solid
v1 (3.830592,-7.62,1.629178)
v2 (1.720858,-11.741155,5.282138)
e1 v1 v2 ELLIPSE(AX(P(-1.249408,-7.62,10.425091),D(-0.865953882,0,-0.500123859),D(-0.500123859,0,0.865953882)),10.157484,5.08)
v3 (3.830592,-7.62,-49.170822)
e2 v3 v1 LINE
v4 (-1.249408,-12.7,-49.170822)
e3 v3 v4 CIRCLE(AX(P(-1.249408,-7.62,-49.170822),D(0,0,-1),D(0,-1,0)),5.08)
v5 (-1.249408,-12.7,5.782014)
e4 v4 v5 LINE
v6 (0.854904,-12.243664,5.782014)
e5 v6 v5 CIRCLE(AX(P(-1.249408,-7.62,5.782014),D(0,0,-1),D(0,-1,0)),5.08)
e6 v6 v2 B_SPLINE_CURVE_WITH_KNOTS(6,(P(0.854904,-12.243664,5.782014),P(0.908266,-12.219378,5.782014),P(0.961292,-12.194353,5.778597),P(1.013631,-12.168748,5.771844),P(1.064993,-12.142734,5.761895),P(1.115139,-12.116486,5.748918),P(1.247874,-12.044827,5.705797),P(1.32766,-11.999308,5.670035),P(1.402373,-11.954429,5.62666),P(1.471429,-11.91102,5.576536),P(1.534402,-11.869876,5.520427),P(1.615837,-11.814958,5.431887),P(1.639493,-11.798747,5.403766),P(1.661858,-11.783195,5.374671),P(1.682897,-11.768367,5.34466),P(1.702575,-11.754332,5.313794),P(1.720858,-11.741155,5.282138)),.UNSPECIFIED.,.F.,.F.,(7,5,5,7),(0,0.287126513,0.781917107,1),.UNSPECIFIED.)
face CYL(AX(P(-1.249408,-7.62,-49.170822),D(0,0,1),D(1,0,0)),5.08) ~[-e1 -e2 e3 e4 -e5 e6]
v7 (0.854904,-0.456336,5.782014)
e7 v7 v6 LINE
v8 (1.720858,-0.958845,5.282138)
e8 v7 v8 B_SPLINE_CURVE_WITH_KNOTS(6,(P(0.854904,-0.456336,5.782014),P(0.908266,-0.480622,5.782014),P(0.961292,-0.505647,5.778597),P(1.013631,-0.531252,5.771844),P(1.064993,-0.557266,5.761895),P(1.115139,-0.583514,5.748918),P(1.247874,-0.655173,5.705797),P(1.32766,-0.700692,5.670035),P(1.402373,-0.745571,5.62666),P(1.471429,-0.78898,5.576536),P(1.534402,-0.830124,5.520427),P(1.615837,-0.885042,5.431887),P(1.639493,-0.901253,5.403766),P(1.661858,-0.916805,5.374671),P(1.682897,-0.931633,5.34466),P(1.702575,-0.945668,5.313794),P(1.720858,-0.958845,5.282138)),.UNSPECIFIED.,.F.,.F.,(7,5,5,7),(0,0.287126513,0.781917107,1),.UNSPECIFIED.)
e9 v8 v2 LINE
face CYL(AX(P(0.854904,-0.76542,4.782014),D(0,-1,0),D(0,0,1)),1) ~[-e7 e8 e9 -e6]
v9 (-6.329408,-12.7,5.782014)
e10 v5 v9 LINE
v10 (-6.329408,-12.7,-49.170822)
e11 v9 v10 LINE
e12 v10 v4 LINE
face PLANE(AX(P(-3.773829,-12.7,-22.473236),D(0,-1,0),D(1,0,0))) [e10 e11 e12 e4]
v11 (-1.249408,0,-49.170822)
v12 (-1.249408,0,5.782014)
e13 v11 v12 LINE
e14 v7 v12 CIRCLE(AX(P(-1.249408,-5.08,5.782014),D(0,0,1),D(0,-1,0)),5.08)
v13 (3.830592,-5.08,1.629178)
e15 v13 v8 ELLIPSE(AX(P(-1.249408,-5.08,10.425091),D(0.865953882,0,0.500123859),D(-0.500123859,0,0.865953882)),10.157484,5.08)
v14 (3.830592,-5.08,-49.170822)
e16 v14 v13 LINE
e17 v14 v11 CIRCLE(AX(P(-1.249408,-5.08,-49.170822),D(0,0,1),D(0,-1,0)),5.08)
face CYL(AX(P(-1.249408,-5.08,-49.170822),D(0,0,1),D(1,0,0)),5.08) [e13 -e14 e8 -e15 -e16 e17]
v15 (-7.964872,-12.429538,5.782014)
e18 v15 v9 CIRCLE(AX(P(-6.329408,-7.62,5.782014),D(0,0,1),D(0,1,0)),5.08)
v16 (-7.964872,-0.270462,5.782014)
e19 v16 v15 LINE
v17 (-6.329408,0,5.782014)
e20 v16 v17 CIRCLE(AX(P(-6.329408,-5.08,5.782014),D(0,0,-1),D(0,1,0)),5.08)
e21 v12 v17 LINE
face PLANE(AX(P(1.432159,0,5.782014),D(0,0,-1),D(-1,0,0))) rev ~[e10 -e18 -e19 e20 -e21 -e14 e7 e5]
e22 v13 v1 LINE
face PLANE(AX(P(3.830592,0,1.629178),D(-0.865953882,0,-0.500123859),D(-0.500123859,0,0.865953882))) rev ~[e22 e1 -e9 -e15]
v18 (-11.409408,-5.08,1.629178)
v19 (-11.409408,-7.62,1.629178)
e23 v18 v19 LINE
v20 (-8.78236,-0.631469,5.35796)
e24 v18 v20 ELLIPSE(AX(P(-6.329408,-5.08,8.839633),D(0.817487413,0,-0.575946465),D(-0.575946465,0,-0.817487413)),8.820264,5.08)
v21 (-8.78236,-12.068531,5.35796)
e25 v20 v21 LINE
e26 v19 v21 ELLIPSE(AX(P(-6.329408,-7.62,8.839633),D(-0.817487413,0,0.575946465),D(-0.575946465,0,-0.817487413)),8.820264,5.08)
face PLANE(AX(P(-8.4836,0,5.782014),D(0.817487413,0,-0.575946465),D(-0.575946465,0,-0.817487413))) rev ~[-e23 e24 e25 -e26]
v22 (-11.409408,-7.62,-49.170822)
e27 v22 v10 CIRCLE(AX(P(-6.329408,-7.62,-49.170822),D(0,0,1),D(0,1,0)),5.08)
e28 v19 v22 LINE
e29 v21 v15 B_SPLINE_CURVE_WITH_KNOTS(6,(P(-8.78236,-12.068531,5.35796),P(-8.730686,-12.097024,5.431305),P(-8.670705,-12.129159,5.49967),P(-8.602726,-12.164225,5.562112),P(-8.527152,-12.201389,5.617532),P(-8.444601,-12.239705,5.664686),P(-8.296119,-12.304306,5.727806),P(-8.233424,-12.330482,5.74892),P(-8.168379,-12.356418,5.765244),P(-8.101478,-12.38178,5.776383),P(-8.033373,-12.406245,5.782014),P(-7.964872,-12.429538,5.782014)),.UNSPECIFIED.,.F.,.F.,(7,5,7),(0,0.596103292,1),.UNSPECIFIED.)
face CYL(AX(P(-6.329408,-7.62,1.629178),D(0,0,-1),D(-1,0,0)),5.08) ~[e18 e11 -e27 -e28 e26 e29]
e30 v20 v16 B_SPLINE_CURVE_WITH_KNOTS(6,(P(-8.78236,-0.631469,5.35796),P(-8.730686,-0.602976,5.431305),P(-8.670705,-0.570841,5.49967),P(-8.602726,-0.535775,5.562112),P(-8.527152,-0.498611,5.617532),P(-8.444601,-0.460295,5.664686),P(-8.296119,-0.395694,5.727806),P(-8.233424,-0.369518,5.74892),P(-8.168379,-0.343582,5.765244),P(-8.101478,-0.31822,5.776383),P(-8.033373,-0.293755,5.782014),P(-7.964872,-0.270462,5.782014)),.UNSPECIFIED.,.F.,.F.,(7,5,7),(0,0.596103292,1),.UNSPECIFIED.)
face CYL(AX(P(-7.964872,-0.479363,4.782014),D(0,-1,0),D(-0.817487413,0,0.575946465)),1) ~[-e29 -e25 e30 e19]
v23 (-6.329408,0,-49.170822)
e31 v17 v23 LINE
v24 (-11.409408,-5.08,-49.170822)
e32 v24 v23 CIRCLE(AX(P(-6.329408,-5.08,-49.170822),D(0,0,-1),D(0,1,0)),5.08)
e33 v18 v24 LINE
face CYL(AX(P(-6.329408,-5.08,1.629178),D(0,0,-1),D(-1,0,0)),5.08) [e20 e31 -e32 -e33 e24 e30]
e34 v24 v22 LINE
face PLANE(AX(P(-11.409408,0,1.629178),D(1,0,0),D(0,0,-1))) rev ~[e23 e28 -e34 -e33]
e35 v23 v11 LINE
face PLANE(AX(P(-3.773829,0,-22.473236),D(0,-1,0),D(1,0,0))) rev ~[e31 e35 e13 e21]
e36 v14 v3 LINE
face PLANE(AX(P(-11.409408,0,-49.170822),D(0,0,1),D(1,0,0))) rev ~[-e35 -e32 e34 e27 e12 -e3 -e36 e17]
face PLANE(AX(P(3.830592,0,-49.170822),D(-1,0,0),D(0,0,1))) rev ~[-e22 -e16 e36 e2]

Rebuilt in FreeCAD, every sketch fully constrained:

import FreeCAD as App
import Part
import Sketcher

V = App.Vector
Q = App.Units.Quantity


def edges_at(feature, points):
    """Names of the edges that pass closest to the given points."""
    edges = feature.Shape.Edges
    near = lambda p: min(range(len(edges)), key=lambda i: edges[i].distToShape(Part.Vertex(*p))[0])
    return sorted({f"Edge{near(p) + 1}" for p in points})

doc = App.newDocument("Part")
body = doc.addObject("PartDesign::Body", "Body")

# Sketch on XZ plane
sketch1 = doc.addObject("Sketcher::SketchObject", "Sketch")
body.addObject(sketch1)
sketch1.AttachmentSupport = (doc.XZ_Plane, [""])
sketch1.MapMode = "FlatFace"
sketch1.addGeometry([
    Part.LineSegment(V(-11.409408, 1.629178, 0), V(-11.409408, -49.170822, 0)),  # 0
    Part.LineSegment(V(-11.409408, -49.170822, 0), V(3.830592, -49.170822, 0)),  # 1
    Part.LineSegment(V(3.830592, -49.170822, 0), V(3.830592, 1.629178, 0)),  # 2
    Part.LineSegment(V(3.830592, 1.629178, 0), V(1.432159, 5.782014, 0)),  # 3
    Part.LineSegment(V(1.432159, 5.782014, 0), V(-8.4836, 5.782014, 0)),  # 4
    Part.LineSegment(V(-8.4836, 5.782014, 0), V(-11.409408, 1.629178, 0)),  # 5
], False)
sketch1.addConstraint([
    Sketcher.Constraint("Coincident", 0, 2, 1, 1),
    Sketcher.Constraint("Coincident", 1, 2, 2, 1),
    Sketcher.Constraint("Coincident", 2, 2, 3, 1),
    Sketcher.Constraint("Coincident", 3, 2, 4, 1),
    Sketcher.Constraint("Coincident", 4, 2, 5, 1),
    Sketcher.Constraint("Coincident", 5, 2, 0, 1),
    Sketcher.Constraint("Vertical", 0),
    Sketcher.Constraint("Horizontal", 1),
    Sketcher.Constraint("Vertical", 2),
    Sketcher.Constraint("Horizontal", 4),
    Sketcher.Constraint("Horizontal", 2, 2, 5, 2),
    Sketcher.Constraint("DistanceY", 0, 2, 0, 1, Q("2 in")),
    Sketcher.Constraint("DistanceX", 1, 1, 1, 2, Q("0.6 in")),
    Sketcher.Constraint("Distance", 5, Q("0.2 in")),
    Sketcher.Constraint("DistanceX", 4, 2, -1, 1, Q("0.334 in")),
    Sketcher.Constraint("DistanceX", 4, 2, 4, 1, Q("9.915759 mm")),
    Sketcher.Constraint("Distance", 3, Q("4.795678 mm")),
    Sketcher.Constraint("DistanceY", 0, 2, -1, 1, Q("49.170822 mm")),
])
pad1 = doc.addObject("PartDesign::Pad", "Pad")
body.addObject(pad1)
pad1.Profile = sketch1
pad1.Length = Q("0.5 in")
doc.recompute()

fillet = doc.addObject("PartDesign::Fillet", "Fillet")
body.addObject(fillet)
fillet.Base = (pad1, edges_at(pad1, [
    (-11.409, 0, -23.771),
    (-11.409, -12.7, -23.771),
    (3.831, -12.7, -23.771),
    (3.831, 0, -23.771),
]))
fillet.Radius = Q("0.2 in")
doc.recompute()

fillet2 = doc.addObject("PartDesign::Fillet", "Fillet001")
body.addObject(fillet2)
fillet2.Base = (fillet, edges_at(fillet, [(1.432, -6.35, 5.782), (-8.484, -6.35, 5.782)]))
fillet2.Radius = 1

doc.recompute()
